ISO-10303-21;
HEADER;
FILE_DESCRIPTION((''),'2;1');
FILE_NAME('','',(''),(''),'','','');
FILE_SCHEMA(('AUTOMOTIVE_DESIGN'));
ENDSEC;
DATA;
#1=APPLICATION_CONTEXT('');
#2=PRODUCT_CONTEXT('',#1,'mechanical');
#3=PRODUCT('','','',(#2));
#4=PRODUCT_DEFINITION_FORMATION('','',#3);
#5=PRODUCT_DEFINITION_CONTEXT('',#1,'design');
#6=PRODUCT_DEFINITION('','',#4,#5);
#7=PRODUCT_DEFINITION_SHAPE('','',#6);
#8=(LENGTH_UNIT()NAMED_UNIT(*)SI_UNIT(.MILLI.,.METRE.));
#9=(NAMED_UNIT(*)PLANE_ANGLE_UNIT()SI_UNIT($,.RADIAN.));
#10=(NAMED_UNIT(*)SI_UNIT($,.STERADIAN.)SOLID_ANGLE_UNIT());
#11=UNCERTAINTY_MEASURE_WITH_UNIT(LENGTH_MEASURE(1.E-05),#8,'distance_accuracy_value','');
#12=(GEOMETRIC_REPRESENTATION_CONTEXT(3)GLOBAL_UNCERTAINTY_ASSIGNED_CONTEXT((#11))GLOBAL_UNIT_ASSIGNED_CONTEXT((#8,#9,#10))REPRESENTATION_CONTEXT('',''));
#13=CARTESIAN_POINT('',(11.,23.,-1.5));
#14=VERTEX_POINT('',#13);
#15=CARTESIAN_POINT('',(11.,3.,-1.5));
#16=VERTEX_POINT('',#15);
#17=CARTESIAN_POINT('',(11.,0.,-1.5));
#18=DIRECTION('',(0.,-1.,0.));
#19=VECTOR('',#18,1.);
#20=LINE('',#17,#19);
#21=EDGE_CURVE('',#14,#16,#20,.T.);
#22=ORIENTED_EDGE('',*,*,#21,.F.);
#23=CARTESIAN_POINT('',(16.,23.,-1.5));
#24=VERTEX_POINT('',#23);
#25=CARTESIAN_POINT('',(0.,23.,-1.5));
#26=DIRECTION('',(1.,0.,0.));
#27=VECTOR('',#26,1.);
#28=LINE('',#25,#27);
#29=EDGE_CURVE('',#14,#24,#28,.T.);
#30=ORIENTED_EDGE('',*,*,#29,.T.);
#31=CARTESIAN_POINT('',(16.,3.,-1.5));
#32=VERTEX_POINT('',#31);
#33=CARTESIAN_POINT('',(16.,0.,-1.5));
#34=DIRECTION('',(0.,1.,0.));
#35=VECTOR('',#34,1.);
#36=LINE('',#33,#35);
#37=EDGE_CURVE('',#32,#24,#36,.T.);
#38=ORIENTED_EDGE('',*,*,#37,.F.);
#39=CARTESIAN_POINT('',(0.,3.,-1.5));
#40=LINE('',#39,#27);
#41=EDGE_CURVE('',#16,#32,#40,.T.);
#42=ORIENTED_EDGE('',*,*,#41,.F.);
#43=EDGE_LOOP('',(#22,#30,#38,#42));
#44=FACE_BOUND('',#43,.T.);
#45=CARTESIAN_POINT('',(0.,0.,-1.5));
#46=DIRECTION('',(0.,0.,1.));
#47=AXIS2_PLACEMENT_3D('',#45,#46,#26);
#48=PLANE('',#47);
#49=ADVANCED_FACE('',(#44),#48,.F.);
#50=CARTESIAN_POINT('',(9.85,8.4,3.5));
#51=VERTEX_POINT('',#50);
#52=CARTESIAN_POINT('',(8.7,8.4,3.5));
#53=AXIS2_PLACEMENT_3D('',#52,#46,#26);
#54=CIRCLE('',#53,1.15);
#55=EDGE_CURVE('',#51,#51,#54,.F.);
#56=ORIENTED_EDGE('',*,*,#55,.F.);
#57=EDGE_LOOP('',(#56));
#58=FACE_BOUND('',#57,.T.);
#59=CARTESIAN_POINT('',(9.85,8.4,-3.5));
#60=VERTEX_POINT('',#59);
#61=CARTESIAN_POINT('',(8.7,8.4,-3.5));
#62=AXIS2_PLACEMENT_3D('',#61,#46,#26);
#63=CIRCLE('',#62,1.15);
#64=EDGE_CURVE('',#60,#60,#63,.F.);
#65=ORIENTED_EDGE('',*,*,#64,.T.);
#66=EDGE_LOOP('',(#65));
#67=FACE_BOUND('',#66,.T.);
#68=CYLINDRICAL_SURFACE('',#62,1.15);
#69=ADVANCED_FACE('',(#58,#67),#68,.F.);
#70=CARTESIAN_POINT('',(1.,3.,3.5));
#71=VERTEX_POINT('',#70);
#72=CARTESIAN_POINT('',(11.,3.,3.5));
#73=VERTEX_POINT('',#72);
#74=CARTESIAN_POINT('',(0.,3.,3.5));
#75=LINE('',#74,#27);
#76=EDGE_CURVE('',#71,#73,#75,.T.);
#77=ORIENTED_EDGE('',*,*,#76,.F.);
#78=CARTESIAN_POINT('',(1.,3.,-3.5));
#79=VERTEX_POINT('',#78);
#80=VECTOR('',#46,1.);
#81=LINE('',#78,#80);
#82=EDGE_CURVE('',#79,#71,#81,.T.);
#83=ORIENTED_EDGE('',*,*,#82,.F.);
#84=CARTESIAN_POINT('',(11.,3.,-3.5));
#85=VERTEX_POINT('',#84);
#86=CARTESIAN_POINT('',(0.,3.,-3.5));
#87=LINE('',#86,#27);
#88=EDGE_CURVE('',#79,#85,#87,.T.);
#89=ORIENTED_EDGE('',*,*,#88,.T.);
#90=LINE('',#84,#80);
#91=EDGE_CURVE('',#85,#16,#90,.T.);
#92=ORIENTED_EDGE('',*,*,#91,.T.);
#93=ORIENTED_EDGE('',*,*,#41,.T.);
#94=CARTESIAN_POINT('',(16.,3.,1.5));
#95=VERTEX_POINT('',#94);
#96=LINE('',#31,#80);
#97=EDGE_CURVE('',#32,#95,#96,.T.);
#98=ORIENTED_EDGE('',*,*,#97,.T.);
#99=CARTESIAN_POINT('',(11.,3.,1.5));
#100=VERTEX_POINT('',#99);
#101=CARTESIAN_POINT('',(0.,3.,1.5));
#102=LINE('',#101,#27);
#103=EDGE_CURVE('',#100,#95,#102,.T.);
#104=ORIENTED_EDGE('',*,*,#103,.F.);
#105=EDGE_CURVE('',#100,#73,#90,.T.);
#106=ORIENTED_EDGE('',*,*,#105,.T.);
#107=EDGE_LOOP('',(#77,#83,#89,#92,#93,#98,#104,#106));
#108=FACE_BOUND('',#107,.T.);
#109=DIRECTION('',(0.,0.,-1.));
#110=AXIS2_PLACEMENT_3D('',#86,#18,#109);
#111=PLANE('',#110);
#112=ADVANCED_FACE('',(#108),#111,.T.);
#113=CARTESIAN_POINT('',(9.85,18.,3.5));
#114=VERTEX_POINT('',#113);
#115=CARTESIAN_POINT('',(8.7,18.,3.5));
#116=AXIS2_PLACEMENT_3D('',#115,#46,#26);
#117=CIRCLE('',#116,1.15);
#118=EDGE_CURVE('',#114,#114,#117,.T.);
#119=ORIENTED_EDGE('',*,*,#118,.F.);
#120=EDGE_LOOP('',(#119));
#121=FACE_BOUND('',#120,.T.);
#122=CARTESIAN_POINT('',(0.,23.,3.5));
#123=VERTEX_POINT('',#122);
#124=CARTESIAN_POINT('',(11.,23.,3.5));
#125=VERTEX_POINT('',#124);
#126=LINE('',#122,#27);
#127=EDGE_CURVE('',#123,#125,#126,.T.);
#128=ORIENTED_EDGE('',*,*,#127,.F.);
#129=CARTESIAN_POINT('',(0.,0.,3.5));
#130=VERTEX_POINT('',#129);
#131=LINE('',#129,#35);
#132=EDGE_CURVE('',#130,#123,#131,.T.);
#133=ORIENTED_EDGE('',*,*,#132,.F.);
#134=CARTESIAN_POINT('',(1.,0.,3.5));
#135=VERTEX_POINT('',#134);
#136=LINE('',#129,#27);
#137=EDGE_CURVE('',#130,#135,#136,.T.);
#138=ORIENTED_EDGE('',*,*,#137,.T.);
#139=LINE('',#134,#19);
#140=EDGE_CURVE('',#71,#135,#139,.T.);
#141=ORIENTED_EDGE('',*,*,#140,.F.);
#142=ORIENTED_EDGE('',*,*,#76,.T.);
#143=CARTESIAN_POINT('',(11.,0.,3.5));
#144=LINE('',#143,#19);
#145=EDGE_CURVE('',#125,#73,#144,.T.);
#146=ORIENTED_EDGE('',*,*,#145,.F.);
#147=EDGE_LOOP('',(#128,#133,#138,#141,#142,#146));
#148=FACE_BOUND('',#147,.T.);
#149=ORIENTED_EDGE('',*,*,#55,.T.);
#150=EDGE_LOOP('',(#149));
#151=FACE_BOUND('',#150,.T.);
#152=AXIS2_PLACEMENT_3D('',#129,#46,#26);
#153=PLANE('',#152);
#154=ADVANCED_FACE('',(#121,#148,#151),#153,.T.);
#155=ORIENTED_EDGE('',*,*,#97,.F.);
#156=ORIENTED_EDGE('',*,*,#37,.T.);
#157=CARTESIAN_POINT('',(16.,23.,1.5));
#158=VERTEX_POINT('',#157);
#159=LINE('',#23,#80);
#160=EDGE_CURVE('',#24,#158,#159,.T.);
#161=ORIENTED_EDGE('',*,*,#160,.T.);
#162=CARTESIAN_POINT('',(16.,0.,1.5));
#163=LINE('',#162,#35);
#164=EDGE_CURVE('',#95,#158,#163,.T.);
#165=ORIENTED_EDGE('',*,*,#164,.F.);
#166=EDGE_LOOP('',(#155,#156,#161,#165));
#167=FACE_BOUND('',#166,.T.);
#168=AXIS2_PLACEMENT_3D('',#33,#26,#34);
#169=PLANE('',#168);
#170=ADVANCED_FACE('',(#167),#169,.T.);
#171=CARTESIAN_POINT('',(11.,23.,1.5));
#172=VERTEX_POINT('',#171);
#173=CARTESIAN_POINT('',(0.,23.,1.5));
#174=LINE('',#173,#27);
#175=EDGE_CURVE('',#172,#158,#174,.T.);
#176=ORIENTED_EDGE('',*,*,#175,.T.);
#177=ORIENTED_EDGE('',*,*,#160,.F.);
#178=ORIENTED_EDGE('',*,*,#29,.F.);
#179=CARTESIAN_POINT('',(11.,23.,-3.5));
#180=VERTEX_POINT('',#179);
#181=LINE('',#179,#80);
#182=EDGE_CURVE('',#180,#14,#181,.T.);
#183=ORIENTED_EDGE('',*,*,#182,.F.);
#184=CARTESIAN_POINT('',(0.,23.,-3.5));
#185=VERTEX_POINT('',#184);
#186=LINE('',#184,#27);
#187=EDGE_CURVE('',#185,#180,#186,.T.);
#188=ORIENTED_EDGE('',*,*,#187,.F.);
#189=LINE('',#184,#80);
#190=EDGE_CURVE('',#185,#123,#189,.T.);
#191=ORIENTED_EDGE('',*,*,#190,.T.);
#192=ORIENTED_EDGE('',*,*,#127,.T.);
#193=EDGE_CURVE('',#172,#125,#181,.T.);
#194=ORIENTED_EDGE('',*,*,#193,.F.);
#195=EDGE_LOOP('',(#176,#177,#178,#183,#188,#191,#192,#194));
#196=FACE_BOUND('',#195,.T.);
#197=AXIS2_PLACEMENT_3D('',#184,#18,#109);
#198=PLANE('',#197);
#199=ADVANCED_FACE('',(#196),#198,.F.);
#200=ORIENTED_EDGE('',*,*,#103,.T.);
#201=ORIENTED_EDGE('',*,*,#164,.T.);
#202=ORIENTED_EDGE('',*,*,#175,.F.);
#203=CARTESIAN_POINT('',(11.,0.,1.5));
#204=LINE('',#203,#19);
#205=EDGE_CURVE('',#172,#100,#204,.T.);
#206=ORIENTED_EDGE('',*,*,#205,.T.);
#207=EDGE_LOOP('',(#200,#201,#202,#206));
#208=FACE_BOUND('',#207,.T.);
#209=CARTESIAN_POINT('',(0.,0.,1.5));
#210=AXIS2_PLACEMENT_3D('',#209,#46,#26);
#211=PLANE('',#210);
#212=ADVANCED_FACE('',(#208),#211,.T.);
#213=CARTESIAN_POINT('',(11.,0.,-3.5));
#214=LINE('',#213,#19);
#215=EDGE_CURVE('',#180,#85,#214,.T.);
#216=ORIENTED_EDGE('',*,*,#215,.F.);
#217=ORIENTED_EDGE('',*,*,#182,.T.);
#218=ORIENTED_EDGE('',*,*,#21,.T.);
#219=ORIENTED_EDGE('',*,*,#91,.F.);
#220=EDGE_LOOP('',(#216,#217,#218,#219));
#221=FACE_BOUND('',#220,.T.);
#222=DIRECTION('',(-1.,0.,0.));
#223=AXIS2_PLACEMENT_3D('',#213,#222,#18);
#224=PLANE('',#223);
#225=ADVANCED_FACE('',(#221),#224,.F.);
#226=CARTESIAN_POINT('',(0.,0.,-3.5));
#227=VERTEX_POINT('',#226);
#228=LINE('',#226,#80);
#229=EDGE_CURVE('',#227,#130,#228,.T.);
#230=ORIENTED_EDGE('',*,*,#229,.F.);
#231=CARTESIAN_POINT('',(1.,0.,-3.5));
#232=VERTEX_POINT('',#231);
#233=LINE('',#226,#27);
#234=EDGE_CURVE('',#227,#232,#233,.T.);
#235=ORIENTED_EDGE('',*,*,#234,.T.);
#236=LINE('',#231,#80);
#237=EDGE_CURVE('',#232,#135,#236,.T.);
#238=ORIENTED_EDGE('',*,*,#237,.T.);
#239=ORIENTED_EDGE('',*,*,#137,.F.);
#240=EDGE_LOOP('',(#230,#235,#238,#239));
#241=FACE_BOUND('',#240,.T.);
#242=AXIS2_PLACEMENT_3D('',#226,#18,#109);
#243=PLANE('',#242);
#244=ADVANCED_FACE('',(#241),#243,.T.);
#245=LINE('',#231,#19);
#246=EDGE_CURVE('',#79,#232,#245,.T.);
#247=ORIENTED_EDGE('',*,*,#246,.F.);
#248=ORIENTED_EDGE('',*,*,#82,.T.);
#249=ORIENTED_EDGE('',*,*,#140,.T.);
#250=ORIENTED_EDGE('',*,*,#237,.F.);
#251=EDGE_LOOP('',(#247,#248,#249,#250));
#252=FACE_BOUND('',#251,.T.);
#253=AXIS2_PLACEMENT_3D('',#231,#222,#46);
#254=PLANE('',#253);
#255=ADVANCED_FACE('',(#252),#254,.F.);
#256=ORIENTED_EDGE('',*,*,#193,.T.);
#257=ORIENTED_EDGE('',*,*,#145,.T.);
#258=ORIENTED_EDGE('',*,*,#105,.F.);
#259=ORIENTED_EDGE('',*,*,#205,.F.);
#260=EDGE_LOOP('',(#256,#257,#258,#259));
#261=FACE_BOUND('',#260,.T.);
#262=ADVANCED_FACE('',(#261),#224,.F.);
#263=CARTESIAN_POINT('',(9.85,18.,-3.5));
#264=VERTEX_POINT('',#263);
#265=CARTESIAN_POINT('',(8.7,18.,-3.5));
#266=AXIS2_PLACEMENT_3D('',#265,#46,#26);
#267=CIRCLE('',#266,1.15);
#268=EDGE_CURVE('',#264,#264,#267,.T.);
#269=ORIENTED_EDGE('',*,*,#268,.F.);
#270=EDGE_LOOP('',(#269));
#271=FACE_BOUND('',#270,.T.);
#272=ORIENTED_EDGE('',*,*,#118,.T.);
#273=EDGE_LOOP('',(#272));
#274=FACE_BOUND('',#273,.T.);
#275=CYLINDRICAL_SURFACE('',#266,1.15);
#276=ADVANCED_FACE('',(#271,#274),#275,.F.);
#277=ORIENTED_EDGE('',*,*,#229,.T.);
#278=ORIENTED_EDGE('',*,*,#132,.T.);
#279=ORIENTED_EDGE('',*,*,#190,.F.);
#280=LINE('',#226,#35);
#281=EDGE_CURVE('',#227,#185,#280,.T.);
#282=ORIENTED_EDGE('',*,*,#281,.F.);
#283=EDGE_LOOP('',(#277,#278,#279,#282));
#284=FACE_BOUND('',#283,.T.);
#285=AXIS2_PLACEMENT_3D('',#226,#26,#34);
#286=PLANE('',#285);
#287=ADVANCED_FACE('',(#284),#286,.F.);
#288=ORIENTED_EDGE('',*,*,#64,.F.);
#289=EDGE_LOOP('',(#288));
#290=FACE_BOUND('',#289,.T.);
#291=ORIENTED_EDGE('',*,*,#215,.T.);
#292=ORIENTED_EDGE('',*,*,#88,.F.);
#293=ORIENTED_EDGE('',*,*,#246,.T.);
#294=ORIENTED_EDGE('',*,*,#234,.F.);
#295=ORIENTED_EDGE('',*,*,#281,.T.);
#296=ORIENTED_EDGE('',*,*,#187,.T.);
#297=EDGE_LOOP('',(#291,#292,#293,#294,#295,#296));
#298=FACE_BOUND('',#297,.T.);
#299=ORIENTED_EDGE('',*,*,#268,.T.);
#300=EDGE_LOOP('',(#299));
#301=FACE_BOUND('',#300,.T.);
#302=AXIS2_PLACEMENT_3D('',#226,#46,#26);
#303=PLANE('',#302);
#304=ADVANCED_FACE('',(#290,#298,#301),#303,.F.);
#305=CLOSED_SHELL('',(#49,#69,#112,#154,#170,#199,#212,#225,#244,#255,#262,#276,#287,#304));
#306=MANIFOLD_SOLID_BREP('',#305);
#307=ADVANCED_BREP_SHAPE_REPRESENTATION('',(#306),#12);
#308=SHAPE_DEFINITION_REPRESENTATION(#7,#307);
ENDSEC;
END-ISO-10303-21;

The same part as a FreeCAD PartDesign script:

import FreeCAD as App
import Part
import Sketcher
from FreeCAD import Vector
Q = App.Units.Quantity


def add_polygon(sketch, points):
    """Adds a closed chain of lines whose ends are joined by coincident constraints."""
    first, n = sketch.GeometryCount, len(points)
    for a, b in zip(points, points[1:] + points[:1]):
        sketch.addGeometry(Part.LineSegment(App.Vector(*a, 0), App.Vector(*b, 0)), False)
    for i in range(n):
        sketch.addConstraint(Sketcher.Constraint("Coincident", first + i, 2, first + (i + 1) % n, 1))

doc = App.newDocument("Part")
body = doc.addObject("PartDesign::Body", "Body")

# Sketch on XY plane
sketch1 = body.newObject("Sketcher::SketchObject", "Sketch")
sketch1.AttachmentSupport = (doc.getObject("XY_Plane"), [""])
sketch1.MapMode = "FlatFace"
add_polygon(sketch1, [(1, 0), (1, 3), (11, 3), (11, 23), (0, 23), (0, 0)])  # lines 0-5
sketch1.addGeometry(Part.Circle(Vector(8.7, 8.4, 0), Vector(0, 0, 1), 1.1), False)  # 6
sketch1.addGeometry(Part.Circle(Vector(8.7, 18, 0), Vector(0, 0, 1), 1.1), False)  # 7
sketch1.addConstraint([
    Sketcher.Constraint("Vertical", 0),
    Sketcher.Constraint("Horizontal", 1),
    Sketcher.Constraint("Vertical", 2),
    Sketcher.Constraint("Horizontal", 3),
    Sketcher.Constraint("Vertical", 4),
    Sketcher.Constraint("Horizontal", 5),
    Sketcher.Constraint("Coincident", 4, 2, -1, 1),
    Sketcher.Constraint("Equal", 6, 7),
    Sketcher.Constraint("Vertical", 6, 3, 7, 3),
    Sketcher.Constraint("Diameter", 6, Q("2.3 mm")),
    Sketcher.Constraint("DistanceX", 1, 1, 1, 2, Q("10 mm")),
    Sketcher.Constraint("DistanceX", 3, 2, 3, 1, Q("11 mm")),
    Sketcher.Constraint("DistanceY", 0, 1, 0, 2, Q("3 mm")),
    Sketcher.Constraint("DistanceY", 2, 1, 2, 2, Q("20 mm")),
    Sketcher.Constraint("DistanceY", -1, 1, 7, 3, Q("18 mm")),
    Sketcher.Constraint("DistanceX", -1, 1, 6, 3, Q("8.7 mm")),
    Sketcher.Constraint("DistanceY", -1, 1, 6, 3, Q("8.4 mm")),
])
pad1 = body.newObject("PartDesign::Pad", "Pad")
pad1.Profile = sketch1
pad1.Type = "TwoLengths"
pad1.Length = 3.5
pad1.Length2 = 3.5

# Sketch on XY plane
sketch2 = body.newObject("Sketcher::SketchObject", "Sketch001")
sketch2.AttachmentSupport = (doc.getObject("XY_Plane"), [""])
sketch2.MapMode = "FlatFace"
add_polygon(sketch2, [(11, 23), (11, 3), (16, 3), (16, 23)])  # lines 0-3
sketch2.addConstraint([
    Sketcher.Constraint("Vertical", 0),
    Sketcher.Constraint("Horizontal", 1),
    Sketcher.Constraint("Vertical", 2),
    Sketcher.Constraint("Horizontal", 3),
    Sketcher.Constraint("DistanceX", 1, 1, 1, 2, Q("5 mm")),
    Sketcher.Constraint("DistanceY", 0, 2, 0, 1, Q("20 mm")),
    Sketcher.Constraint("DistanceX", -1, 1, 0, 2, Q("11 mm")),
    Sketcher.Constraint("DistanceY", -1, 1, 0, 2, Q("3 mm")),
])
pad2 = body.newObject("PartDesign::Pad", "Pad001")
pad2.Profile = sketch2
pad2.Type = "TwoLengths"
pad2.Length = 1.5
pad2.Length2 = 1.5

doc.recompute()
